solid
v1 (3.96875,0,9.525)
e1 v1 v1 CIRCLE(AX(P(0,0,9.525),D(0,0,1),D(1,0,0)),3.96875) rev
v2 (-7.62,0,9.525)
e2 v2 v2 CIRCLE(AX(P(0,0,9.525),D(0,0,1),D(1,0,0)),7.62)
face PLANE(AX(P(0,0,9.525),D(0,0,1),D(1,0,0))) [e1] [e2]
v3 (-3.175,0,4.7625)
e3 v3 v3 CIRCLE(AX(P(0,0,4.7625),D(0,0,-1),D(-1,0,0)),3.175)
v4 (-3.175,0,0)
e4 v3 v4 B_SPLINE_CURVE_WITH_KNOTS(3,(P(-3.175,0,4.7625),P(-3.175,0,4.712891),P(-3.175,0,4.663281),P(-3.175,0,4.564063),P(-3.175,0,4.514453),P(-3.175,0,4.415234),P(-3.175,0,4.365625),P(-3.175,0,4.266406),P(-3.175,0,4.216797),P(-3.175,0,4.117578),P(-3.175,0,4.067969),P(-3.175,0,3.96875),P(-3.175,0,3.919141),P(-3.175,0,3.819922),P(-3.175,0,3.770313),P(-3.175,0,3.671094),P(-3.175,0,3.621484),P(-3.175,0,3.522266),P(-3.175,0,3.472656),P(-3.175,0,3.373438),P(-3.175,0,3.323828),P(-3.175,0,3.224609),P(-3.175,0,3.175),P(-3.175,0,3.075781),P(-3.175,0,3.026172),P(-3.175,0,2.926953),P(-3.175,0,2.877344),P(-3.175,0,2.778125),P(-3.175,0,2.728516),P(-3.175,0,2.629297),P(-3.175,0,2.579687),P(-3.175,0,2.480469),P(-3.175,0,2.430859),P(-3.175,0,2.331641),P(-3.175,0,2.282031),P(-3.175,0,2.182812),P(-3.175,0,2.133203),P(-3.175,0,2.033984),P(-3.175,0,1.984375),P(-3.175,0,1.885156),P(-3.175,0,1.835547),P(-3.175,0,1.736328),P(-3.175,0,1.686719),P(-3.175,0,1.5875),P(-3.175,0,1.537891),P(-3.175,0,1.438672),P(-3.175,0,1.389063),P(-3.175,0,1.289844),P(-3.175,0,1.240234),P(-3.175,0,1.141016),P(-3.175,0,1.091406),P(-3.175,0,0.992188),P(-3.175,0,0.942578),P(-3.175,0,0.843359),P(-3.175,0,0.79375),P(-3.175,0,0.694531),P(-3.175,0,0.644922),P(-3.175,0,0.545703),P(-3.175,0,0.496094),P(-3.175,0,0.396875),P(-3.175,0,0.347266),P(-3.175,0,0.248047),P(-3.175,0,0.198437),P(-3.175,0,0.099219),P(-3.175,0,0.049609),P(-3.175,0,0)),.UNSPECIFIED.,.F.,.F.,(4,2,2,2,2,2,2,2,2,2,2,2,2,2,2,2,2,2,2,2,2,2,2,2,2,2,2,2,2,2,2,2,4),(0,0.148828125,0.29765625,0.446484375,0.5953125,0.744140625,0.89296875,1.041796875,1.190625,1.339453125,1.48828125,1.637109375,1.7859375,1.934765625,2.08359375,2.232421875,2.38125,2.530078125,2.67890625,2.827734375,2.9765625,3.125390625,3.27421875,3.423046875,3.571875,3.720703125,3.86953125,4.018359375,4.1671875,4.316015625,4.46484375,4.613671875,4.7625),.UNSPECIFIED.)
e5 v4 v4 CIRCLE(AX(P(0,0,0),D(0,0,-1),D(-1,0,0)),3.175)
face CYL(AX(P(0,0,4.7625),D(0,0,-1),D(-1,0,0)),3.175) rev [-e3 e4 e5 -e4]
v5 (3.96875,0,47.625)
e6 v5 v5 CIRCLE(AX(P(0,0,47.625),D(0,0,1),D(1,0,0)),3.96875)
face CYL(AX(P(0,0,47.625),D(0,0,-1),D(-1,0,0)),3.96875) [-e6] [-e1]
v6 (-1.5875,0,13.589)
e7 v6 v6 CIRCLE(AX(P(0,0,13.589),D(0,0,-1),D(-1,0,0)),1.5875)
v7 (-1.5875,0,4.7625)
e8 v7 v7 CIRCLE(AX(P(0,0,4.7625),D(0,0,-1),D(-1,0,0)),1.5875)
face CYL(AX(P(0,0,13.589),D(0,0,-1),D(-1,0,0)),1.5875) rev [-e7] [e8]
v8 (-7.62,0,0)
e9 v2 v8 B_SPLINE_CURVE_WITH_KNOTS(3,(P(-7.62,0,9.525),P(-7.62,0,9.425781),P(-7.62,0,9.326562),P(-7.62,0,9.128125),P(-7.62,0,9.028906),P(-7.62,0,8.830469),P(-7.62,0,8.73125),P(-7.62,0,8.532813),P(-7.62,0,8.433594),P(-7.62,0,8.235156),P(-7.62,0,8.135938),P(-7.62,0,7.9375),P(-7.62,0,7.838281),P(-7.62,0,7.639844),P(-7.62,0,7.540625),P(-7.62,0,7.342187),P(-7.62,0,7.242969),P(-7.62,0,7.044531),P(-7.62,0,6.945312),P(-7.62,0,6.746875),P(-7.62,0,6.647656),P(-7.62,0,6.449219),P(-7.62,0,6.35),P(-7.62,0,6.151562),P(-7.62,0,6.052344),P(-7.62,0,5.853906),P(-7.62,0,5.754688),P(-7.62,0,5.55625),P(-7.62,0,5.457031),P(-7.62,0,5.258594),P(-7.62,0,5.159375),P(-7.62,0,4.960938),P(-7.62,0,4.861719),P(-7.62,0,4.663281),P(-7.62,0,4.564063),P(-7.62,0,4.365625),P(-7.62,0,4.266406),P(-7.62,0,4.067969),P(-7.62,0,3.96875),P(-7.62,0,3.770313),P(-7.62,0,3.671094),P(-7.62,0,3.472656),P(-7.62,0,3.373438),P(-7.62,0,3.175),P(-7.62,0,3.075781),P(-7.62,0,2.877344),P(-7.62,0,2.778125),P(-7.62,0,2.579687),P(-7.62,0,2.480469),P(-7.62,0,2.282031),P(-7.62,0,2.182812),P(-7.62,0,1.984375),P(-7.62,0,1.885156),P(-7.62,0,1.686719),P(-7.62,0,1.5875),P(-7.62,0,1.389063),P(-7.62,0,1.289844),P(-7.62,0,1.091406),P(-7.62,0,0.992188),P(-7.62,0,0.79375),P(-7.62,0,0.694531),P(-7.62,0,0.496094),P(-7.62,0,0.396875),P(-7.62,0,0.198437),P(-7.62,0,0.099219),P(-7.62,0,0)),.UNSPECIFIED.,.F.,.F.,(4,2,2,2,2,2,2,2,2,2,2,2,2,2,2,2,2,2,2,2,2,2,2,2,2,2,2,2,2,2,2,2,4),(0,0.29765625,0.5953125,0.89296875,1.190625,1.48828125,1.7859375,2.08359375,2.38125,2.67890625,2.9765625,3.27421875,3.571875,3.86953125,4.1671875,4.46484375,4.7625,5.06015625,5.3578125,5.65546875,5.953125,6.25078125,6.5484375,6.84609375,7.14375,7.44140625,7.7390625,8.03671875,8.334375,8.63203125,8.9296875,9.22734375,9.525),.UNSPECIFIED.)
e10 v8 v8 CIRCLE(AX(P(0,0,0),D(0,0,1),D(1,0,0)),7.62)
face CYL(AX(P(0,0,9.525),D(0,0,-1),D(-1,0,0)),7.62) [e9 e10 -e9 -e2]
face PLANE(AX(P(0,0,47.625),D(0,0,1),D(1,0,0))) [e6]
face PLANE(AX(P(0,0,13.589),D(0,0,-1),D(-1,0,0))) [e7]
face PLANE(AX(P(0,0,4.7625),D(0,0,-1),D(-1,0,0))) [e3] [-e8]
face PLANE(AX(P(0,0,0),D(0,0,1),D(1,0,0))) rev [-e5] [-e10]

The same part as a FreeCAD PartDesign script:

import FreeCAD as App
import Part
import Sketcher
Q = App.Units.Quantity

doc = App.newDocument("Part")
body = doc.addObject("PartDesign::Body", "Body")

# Sketch on XY plane
sketch1 = body.newObject("Sketcher::SketchObject", "Sketch")
sketch1.AttachmentSupport = (doc.getObject("XY_Plane"), [""])
sketch1.MapMode = "FlatFace"
sketch1.addGeometry(Part.Circle(App.Vector(0, 0, 0), App.Vector(0, 0, 1), 8), False)
sketch1.addConstraint([
    Sketcher.Constraint("Coincident", 0, 3, -1, 1),
    Sketcher.Constraint("Diameter", 0, Q("0.6 in")),
])
pad1 = body.newObject("PartDesign::Pad", "Pad")
pad1.Profile = sketch1
pad1.Length = Q("0.375 in")

# Sketch on XY plane
sketch2 = body.newObject("Sketcher::SketchObject", "Sketch001")
sketch2.AttachmentSupport = (doc.getObject("XY_Plane"), [""])
sketch2.MapMode = "FlatFace"
sketch2.AttachmentOffset = App.Placement(App.Vector(0, 0, 0.25 * 25.4), App.Rotation())
sketch2.addGeometry(Part.Circle(App.Vector(0, 0, 0), App.Vector(0, 0, 1), 4), False)
sketch2.addConstraint([
    Sketcher.Constraint("Coincident", 0, 3, -1, 1),
    Sketcher.Constraint("Diameter", 0, Q("0.3125 in")),
])
pad2 = body.newObject("PartDesign::Pad", "Pad001")
pad2.Profile = sketch2
pad2.Length = Q("1.625 in")

# Sketch on XY plane
sketch3 = body.newObject("Sketcher::SketchObject", "Sketch002")
sketch3.AttachmentSupport = (doc.getObject("XY_Plane"), [""])
sketch3.MapMode = "FlatFace"
sketch3.addGeometry(Part.Circle(App.Vector(0, 0, 0), App.Vector(0, 0, 1), 3.2), False)
sketch3.addConstraint([
    Sketcher.Constraint("Coincident", 0, 3, -1, 1),
    Sketcher.Constraint("Diameter", 0, Q("0.25 in")),
])
pocket1 = body.newObject("PartDesign::Pocket", "Pocket")
pocket1.Profile = sketch3
pocket1.Length = Q("0.1875 in")
pocket1.Reversed = True

# Sketch on XY plane
sketch4 = body.newObject("Sketcher::SketchObject", "Sketch003")
sketch4.AttachmentSupport = (doc.getObject("XY_Plane"), [""])
sketch4.MapMode = "FlatFace"
sketch4.addGeometry(Part.Circle(App.Vector(0, 0, 0), App.Vector(0, 0, 1), 1.6), False)
sketch4.addConstraint([
    Sketcher.Constraint("Coincident", 0, 3, -1, 1),
    Sketcher.Constraint("Diameter", 0, Q("0.125 in")),
])
pocket2 = body.newObject("PartDesign::Pocket", "Pocket001")
pocket2.Profile = sketch4
pocket2.Length = Q("0.535 in")
pocket2.Reversed = True

doc.recompute()
